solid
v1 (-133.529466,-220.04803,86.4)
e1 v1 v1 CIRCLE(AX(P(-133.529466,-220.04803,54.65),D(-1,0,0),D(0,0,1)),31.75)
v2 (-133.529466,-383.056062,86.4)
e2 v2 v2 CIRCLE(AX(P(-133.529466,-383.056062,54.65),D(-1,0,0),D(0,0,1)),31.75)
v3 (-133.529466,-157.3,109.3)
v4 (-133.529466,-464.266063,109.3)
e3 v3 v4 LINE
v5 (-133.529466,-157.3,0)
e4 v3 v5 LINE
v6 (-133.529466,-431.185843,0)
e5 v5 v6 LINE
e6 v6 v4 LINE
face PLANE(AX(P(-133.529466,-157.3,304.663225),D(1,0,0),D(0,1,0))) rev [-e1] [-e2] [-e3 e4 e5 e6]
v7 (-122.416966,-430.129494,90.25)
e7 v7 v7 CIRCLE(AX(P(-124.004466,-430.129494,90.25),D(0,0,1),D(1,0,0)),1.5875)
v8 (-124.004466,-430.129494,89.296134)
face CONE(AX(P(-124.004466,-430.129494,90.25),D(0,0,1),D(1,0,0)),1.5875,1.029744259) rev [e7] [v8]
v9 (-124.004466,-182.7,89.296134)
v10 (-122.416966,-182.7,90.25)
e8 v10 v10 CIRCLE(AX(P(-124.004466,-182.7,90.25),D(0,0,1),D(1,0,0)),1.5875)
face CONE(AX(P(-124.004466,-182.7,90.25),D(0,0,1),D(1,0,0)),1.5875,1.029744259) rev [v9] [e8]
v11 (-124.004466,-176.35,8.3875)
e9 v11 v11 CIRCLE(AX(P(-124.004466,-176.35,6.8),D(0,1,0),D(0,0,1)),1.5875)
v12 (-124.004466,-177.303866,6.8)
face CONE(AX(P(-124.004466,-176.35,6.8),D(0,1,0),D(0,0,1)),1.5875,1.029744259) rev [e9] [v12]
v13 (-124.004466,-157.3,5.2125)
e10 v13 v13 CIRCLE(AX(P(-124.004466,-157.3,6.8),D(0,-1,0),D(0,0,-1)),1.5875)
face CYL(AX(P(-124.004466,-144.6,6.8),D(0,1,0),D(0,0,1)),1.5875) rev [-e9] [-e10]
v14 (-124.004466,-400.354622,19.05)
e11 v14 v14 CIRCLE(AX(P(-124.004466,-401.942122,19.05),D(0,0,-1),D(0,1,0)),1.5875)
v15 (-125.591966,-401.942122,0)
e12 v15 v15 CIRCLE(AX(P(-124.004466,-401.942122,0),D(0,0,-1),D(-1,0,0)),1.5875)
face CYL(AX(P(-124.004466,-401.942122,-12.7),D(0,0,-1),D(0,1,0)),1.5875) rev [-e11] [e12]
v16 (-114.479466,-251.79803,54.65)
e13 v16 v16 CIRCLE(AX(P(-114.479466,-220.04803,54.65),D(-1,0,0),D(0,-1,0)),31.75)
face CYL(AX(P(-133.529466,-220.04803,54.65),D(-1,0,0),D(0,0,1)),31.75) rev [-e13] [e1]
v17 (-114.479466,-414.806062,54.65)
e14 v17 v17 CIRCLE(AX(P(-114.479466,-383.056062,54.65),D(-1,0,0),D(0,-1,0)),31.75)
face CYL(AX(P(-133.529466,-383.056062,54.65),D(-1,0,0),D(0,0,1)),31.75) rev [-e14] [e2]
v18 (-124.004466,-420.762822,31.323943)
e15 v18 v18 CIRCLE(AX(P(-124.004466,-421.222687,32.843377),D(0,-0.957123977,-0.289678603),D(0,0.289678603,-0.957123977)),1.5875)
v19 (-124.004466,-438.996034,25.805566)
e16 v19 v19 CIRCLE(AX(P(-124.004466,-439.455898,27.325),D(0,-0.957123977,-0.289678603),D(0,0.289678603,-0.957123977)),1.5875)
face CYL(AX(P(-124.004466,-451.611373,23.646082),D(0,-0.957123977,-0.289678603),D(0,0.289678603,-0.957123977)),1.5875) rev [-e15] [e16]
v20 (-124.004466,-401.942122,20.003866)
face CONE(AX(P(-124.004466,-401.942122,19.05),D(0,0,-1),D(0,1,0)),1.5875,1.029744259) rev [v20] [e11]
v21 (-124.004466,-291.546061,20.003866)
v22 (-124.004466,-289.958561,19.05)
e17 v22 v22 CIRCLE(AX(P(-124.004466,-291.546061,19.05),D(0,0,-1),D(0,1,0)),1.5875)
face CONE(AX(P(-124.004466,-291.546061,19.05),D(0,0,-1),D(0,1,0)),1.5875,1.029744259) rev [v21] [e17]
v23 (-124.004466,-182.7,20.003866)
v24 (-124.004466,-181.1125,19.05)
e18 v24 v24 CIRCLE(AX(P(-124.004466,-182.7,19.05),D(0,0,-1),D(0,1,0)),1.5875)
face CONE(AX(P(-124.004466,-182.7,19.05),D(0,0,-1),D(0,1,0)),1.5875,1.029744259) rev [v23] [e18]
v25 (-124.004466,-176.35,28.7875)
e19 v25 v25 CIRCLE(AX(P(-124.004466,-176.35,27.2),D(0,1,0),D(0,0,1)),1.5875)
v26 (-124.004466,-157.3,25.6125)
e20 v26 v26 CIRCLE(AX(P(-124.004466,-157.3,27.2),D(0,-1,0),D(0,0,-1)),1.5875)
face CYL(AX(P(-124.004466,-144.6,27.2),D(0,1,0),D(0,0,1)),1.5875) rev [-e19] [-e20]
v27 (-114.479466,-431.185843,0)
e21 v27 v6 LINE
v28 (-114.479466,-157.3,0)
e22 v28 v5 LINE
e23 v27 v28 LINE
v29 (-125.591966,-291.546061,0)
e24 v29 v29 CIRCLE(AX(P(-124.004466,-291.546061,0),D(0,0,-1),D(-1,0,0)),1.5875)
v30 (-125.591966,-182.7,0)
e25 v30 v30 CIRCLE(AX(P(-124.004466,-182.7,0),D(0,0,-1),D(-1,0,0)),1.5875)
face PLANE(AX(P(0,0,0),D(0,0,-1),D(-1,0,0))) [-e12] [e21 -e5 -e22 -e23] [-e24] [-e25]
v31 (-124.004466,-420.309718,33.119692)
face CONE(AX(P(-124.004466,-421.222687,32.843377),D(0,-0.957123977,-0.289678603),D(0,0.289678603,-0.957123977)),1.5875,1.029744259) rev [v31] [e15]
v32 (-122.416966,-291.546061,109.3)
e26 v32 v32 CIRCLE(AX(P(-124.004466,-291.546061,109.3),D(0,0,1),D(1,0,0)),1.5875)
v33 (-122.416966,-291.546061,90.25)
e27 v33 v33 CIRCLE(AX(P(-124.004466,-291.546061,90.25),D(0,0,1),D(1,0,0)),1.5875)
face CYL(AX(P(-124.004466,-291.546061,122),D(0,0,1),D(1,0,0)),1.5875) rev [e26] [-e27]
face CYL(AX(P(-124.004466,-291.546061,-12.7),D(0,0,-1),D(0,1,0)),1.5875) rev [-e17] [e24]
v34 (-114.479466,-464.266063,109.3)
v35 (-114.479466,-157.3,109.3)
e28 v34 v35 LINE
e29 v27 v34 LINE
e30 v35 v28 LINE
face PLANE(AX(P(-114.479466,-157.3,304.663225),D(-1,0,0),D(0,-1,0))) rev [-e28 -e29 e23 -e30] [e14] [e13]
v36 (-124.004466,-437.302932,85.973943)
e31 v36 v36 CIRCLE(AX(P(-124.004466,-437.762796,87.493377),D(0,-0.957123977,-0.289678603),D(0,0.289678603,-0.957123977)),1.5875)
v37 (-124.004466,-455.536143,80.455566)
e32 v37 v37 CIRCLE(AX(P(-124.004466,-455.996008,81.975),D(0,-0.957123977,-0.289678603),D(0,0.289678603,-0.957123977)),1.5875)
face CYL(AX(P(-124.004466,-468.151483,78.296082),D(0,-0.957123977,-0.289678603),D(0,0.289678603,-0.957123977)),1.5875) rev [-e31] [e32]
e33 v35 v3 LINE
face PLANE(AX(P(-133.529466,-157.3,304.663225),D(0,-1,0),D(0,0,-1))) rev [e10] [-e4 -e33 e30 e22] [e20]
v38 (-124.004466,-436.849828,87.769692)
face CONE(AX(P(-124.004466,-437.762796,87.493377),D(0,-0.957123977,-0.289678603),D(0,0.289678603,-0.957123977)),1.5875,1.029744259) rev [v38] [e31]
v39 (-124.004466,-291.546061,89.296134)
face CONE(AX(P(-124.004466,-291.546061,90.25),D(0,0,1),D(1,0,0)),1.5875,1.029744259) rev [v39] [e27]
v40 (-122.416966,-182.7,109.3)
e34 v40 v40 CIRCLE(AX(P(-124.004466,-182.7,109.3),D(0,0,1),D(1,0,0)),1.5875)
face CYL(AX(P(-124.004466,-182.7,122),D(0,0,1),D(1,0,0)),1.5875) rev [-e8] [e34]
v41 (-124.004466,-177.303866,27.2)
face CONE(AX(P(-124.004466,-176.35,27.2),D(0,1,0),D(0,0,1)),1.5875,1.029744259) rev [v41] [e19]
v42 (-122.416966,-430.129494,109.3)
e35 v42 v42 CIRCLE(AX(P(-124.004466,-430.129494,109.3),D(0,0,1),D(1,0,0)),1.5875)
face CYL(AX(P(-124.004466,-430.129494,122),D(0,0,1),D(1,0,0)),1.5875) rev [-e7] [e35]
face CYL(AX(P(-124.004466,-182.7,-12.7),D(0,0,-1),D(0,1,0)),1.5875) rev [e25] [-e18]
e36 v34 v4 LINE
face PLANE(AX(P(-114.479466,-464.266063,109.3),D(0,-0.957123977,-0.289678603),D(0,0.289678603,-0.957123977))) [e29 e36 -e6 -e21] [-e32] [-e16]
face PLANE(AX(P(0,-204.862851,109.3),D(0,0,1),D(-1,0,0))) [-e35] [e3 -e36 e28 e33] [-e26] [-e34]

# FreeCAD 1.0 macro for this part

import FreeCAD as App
import Part
import Sketcher
Q = App.Units.Quantity


def add_polygon(sketch, points):
    """Adds a closed chain of lines whose ends are joined by coincident constraints."""
    first, n = sketch.GeometryCount, len(points)
    for a, b in zip(points, points[1:] + points[:1]):
        sketch.addGeometry(Part.LineSegment(App.Vector(*a, 0), App.Vector(*b, 0)), False)
    for i in range(n):
        sketch.addConstraint(Sketcher.Constraint("Coincident", first + i, 2, first + (i + 1) % n, 1))

doc = App.newDocument("Part")
body = doc.addObject("PartDesign::Body", "Body")

# Sketch on XY plane
sketch1 = doc.addObject("Sketcher::SketchObject", "Sketch")
body.addObject(sketch1)
sketch1.AttachmentSupport = (doc.XY_Plane, [""])
sketch1.MapMode = "FlatFace"
add_polygon(sketch1, [(-133.529466, -157.3), (-133.529466, -427.342122), (-114.479466, -427.342122), (-114.479466, -157.3)])  # lines 0-3
sketch1.addConstraint(Sketcher.Constraint("Vertical", 0))
sketch1.addConstraint(Sketcher.Constraint("Horizontal", 1))
sketch1.addConstraint(Sketcher.Constraint("Vertical", 2))
sketch1.addConstraint(Sketcher.Constraint("Horizontal", 3))
sketch1.addConstraint(Sketcher.Constraint("DistanceX", 1, 1, 1, 2, Q("0.75 in")))
sketch1.addConstraint(Sketcher.Constraint("DistanceY", 0, 2, 0, 1, 270.042122))
sketch1.addConstraint(Sketcher.Constraint("DistanceY", 2, 2, -1, 1, 157.3))
sketch1.addConstraint(Sketcher.Constraint("DistanceX", 0, 2, -1, 1, 133.529466))
pad1 = doc.addObject("PartDesign::Pad", "Pad")
body.addObject(pad1)
pad1.Profile = sketch1
pad1.Length = 33.95

# Sketch on XY plane
sketch2 = doc.addObject("Sketcher::SketchObject", "Sketch001")
body.addObject(sketch2)
sketch2.AttachmentSupport = (doc.XY_Plane, [""])
sketch2.MapMode = "FlatFace"
sketch2.AttachmentOffset = App.Placement(App.Vector(0, 0, 33.95), App.Rotation())
add_polygon(sketch2, [(-133.529466, -157.3), (-133.529466, -427.342122), (-114.479466, -427.342122), (-114.479466, -157.3)])  # lines 0-3
sketch2.addConstraint(Sketcher.Constraint("Vertical", 0))
sketch2.addConstraint(Sketcher.Constraint("Horizontal", 1))
sketch2.addConstraint(Sketcher.Constraint("Vertical", 2))
sketch2.addConstraint(Sketcher.Constraint("Horizontal", 3))
sketch2.addConstraint(Sketcher.Constraint("DistanceX", 1, 1, 1, 2, Q("0.75 in")))
sketch2.addConstraint(Sketcher.Constraint("DistanceY", 0, 2, 0, 1, 270.042122))
sketch2.addConstraint(Sketcher.Constraint("DistanceY", 2, 2, -1, 1, 157.3))
sketch2.addConstraint(Sketcher.Constraint("DistanceX", 0, 2, -1, 1, 133.529466))
pad2 = doc.addObject("PartDesign::Pad", "Pad001")
body.addObject(pad2)
pad2.Profile = sketch2
pad2.Length = 75.35

# Sketch on YZ plane
sketch3 = doc.addObject("Sketcher::SketchObject", "Sketch002")
body.addObject(sketch3)
sketch3.AttachmentSupport = (doc.YZ_Plane, [""])
sketch3.MapMode = "FlatFace"
sketch3.AttachmentOffset = App.Placement(App.Vector(0, 0, -133.529466), App.Rotation())
add_polygon(sketch3, [(-464.266063, 109.3), (-427.342122, 109.3), (-427.342122, 0), (-431.185843, 0)])  # lines 0-3
sketch3.addConstraint(Sketcher.Constraint("Horizontal", 0))
sketch3.addConstraint(Sketcher.Constraint("Vertical", 1))
sketch3.addConstraint(Sketcher.Constraint("Horizontal", 2))
sketch3.addConstraint(Sketcher.Constraint("PointOnObject", 1, 2, -1))
sketch3.addConstraint(Sketcher.Constraint("DistanceY", 1, 2, 1, 1, 109.3))
sketch3.addConstraint(Sketcher.Constraint("DistanceX", 0, 1, 0, 2, 36.923941))
sketch3.addConstraint(Sketcher.Constraint("DistanceX", 2, 2, 2, 1, 3.843722))
sketch3.addConstraint(Sketcher.Constraint("DistanceX", 0, 2, -1, 1, 427.342122))
pad3 = doc.addObject("PartDesign::Pad", "Pad002")
body.addObject(pad3)
pad3.Profile = sketch3
pad3.Length = Q("0.75 in")

# Sketch on XY plane
sketch4 = doc.addObject("Sketcher::SketchObject", "Sketch003")
body.addObject(sketch4)
sketch4.AttachmentSupport = (doc.XY_Plane, [""])
sketch4.MapMode = "FlatFace"
sketch4.AttachmentOffset = App.Placement(App.Vector(0, 0, 122), App.Rotation())
sketch4.addGeometry(Part.Circle(App.Vector(-237.654466, -118.383333, 0), App.Vector(0, 0, 1), 1.5875), False)
sketch4.addGeometry(Part.Circle(App.Vector(-237.654466, -13.516667, 0), App.Vector(0, 0, 1), 1.5875), False)
sketch4.addGeometry(Part.Circle(App.Vector(-29.404466, -150.95, 0), App.Vector(0, 0, 1), 1.5875), False)
sketch4.addGeometry(Part.Circle(App.Vector(-218.604466, -150.95, 0), App.Vector(0, 0, 1), 1.5875), False)
sketch4.addGeometry(Part.Circle(App.Vector(-124.004466, -150.95, 0), App.Vector(0, 0, 1), 1.5875), False)
sketch4.addGeometry(Part.Circle(App.Vector(-124.004466, -182.7, 0), App.Vector(0, 0, 1), 1.5875), False)
sketch4.addGeometry(Part.Circle(App.Vector(-124.004466, -430.129494, 0), App.Vector(0, 0, 1), 1.5875), False)
sketch4.addGeometry(Part.Circle(App.Vector(-124.004466, -291.546061, 0), App.Vector(0, 0, 1), 1.5875), False)
sketch4.addGeometry(Part.Circle(App.Vector(-164.983633, -291.546061, 0), App.Vector(0, 0, 1), 1.5875), False)
sketch4.addGeometry(Part.Circle(App.Vector(-290.800299, -291.546061, 0), App.Vector(0, 0, 1), 1.5875), False)
sketch4.addGeometry(Part.Circle(App.Vector(-331.779466, -430.129494, 0), App.Vector(0, 0, 1), 1.5875), False)
sketch4.addGeometry(Part.Circle(App.Vector(-331.779466, -322.59712, 0), App.Vector(0, 0, 1), 1.5875), False)
sketch4.addGeometry(Part.Circle(App.Vector(-331.779466, -215.064747, 0), App.Vector(0, 0, 1), 1.5875), False)
sketch4.addGeometry(Part.Circle(App.Vector(-331.779466, -127, 0), App.Vector(0, 0, 1), 1.5875), False)
sketch4.addGeometry(Part.Circle(App.Vector(-331.779466, 0, 0), App.Vector(0, 0, 1), 1.5875), False)
sketch4.addGeometry(Part.Circle(App.Vector(83.770534, 0, 0), App.Vector(0, 0, 1), 1.5875), False)
sketch4.addGeometry(Part.Circle(App.Vector(83.770534, -127, 0), App.Vector(0, 0, 1), 1.5875), False)
sketch4.addGeometry(Part.Circle(App.Vector(83.770534, -215.064747, 0), App.Vector(0, 0, 1), 1.5875), False)
sketch4.addGeometry(Part.Circle(App.Vector(83.770534, -322.59712, 0), App.Vector(0, 0, 1), 1.5875), False)
sketch4.addGeometry(Part.Circle(App.Vector(83.770534, -430.129494, 0), App.Vector(0, 0, 1), 1.5875), False)
sketch4.addGeometry(Part.Circle(App.Vector(42.791367, -291.546061, 0), App.Vector(0, 0, 1), 1.5875), False)
sketch4.addGeometry(Part.Circle(App.Vector(-83.025299, -291.546061, 0), App.Vector(0, 0, 1), 1.5875), False)
sketch4.addGeometry(Part.Circle(App.Vector(-10.354466, -13.516667, 0), App.Vector(0, 0, 1), 1.5875), False)
sketch4.addGeometry(Part.Circle(App.Vector(-10.354466, -118.383333, 0), App.Vector(0, 0, 1), 1.5875), False)
sketch4.addConstraint(Sketcher.Constraint("Equal", 0, 1))
sketch4.addConstraint(Sketcher.Constraint("Equal", 1, 2))
sketch4.addConstraint(Sketcher.Constraint("Equal", 2, 3))
sketch4.addConstraint(Sketcher.Constraint("Equal", 3, 4))
sketch4.addConstraint(Sketcher.Constraint("Equal", 4, 5))
sketch4.addConstraint(Sketcher.Constraint("Equal", 5, 6))
sketch4.addConstraint(Sketcher.Constraint("Equal", 6, 7))
sketch4.addConstraint(Sketcher.Constraint("Equal", 7, 8))
sketch4.addConstraint(Sketcher.Constraint("Equal", 8, 9))
sketch4.addConstraint(Sketcher.Constraint("Equal", 9, 10))
sketch4.addConstraint(Sketcher.Constraint("Equal", 10, 11))
sketch4.addConstraint(Sketcher.Constraint("Equal", 11, 12))
sketch4.addConstraint(Sketcher.Constraint("Equal", 12, 13))
sketch4.addConstraint(Sketcher.Constraint("Equal", 13, 14))
sketch4.addConstraint(Sketcher.Constraint("Equal", 14, 15))
sketch4.addConstraint(Sketcher.Constraint("Equal", 15, 16))
sketch4.addConstraint(Sketcher.Constraint("Equal", 16, 17))
sketch4.addConstraint(Sketcher.Constraint("Equal", 17, 18))
sketch4.addConstraint(Sketcher.Constraint("Equal", 18, 19))
sketch4.addConstraint(Sketcher.Constraint("Equal", 19, 20))
sketch4.addConstraint(Sketcher.Constraint("Equal", 20, 21))
sketch4.addConstraint(Sketcher.Constraint("Equal", 21, 22))
sketch4.addConstraint(Sketcher.Constraint("Equal", 22, 23))
sketch4.addConstraint(Sketcher.Constraint("PointOnObject", 14, 3, -1))
sketch4.addConstraint(Sketcher.Constraint("PointOnObject", 15, 3, -1))
sketch4.addConstraint(Sketcher.Constraint("Horizontal", 2, 3, 3, 3))
sketch4.addConstraint(Sketcher.Constraint("Horizontal", 3, 3, 4, 3))
sketch4.addConstraint(Sketcher.Constraint("Horizontal", 7, 3, 8, 3))
sketch4.addConstraint(Sketcher.Constraint("Horizontal", 8, 3, 9, 3))
sketch4.addConstraint(Sketcher.Constraint("Horizontal", 6, 3, 10, 3))
sketch4.addConstraint(Sketcher.Constraint("Horizontal", 13, 3, 16, 3))
sketch4.addConstraint(Sketcher.Constraint("Horizontal", 12, 3, 17, 3))
sketch4.addConstraint(Sketcher.Constraint("Horizontal", 11, 3, 18, 3))
sketch4.addConstraint(Sketcher.Constraint("Horizontal", 10, 3, 19, 3))
sketch4.addConstraint(Sketcher.Constraint("Horizontal", 9, 3, 20, 3))
sketch4.addConstraint(Sketcher.Constraint("Horizontal", 20, 3, 21, 3))
sketch4.addConstraint(Sketcher.Constraint("Horizontal", 1, 3, 22, 3))
sketch4.addConstraint(Sketcher.Constraint("Horizontal", 0, 3, 23, 3))
sketch4.addConstraint(Sketcher.Constraint("Vertical", 0, 3, 1, 3))
sketch4.addConstraint(Sketcher.Constraint("Vertical", 4, 3, 5, 3))
sketch4.addConstraint(Sketcher.Constraint("Vertical", 5, 3, 6, 3))
sketch4.addConstraint(Sketcher.Constraint("Vertical", 6, 3, 7, 3))
sketch4.addConstraint(Sketcher.Constraint("Vertical", 10, 3, 11, 3))
sketch4.addConstraint(Sketcher.Constraint("Vertical", 11, 3, 12, 3))
sketch4.addConstraint(Sketcher.Constraint("Vertical", 12, 3, 13, 3))
sketch4.addConstraint(Sketcher.Constraint("Vertical", 13, 3, 14, 3))
sketch4.addConstraint(Sketcher.Constraint("Vertical", 15, 3, 16, 3))
sketch4.addConstraint(Sketcher.Constraint("Vertical", 16, 3, 17, 3))
sketch4.addConstraint(Sketcher.Constraint("Vertical", 17, 3, 18, 3))
sketch4.addConstraint(Sketcher.Constraint("Vertical", 18, 3, 19, 3))
sketch4.addConstraint(Sketcher.Constraint("Vertical", 22, 3, 23, 3))
sketch4.addConstraint(Sketcher.Constraint("Diameter", 0, Q("0.125 in")))
sketch4.addConstraint(Sketcher.Constraint("DistanceY", 13, 3, -1, 1, Q("5 in")))
sketch4.addConstraint(Sketcher.Constraint("DistanceX", 0, 3, 3, 3, Q("0.75 in")))
sketch4.addConstraint(Sketcher.Constraint("DistanceY", 5, 3, 4, 3, Q("1.25 in")))
sketch4.addConstraint(Sketcher.Constraint("DistanceX", 2, 3, 22, 3, Q("0.75 in")))
sketch4.addConstraint(Sketcher.Constraint("DistanceY", 2, 3, -1, 1, 150.95))
sketch4.addConstraint(Sketcher.Constraint("DistanceX", 9, 3, -1, 1, 290.800299))
sketch4.addConstraint(Sketcher.Constraint("DistanceX", 21, 3, -1, 1, 83.025299))
sketch4.addConstraint(Sketcher.Constraint("DistanceX", 0, 3, 2, 3, 208.25))
sketch4.addConstraint(Sketcher.Constraint("DistanceX", 4, 3, 2, 3, 94.6))
sketch4.addConstraint(Sketcher.Constraint("DistanceX", 10, 3, 6, 3, 207.775))
sketch4.addConstraint(Sketcher.Constraint("DistanceX", 2, 3, 15, 3, 113.175))
sketch4.addConstraint(Sketcher.Constraint("DistanceY", 7, 3, -1, 1, 291.546061))
sketch4.addConstraint(Sketcher.Constraint("DistanceY", 11, 3, -1, 1, 322.59712))
sketch4.addConstraint(Sketcher.Constraint("DistanceY", 6, 3, 0, 3, 311.74616))
sketch4.addConstraint(Sketcher.Constraint("DistanceX", 0, 3, -1, 1, 237.654466))
sketch4.addConstraint(Sketcher.Constraint("DistanceY", 0, 3, -1, 1, 118.383333))
sketch4.addConstraint(Sketcher.Constraint("DistanceY", 1, 3, -1, 1, 13.516667))
sketch4.addConstraint(Sketcher.Constraint("DistanceX", 8, 3, -1, 1, 164.983633))
sketch4.addConstraint(Sketcher.Constraint("DistanceY", 12, 3, -1, 1, 215.064747))
sketch4.addConstraint(Sketcher.Constraint("DistanceX", -1, 1, 20, 3, 42.791367))
doc.recompute()
hole = doc.addObject("PartDesign::Hole", "Hole")
body.addObject(hole)
hole.Profile = sketch4
hole.ThreadType = "None"
hole.Diameter = Q("0.125 in")
hole.DepthType = "Dimension"
hole.Depth = Q("1.25 in")
hole.DrillPoint = "Angled"
hole.DrillPointAngle = 118
hole.HoleCutType = "Countersink"
hole.HoleCutDiameter = Q("0.4 in")
hole.HoleCutCountersinkAngle = 82

# Sketch on XZ plane
sketch5 = doc.addObject("Sketcher::SketchObject", "Sketch004")
body.addObject(sketch5)
sketch5.AttachmentSupport = (doc.XZ_Plane, [""])
sketch5.MapMode = "FlatFace"
sketch5.AttachmentOffset = App.Placement(App.Vector(0, 0, 144.6), App.Rotation())
sketch5.addGeometry(Part.Circle(App.Vector(-124.004466, 6.8, 0), App.Vector(0, 0, 1), 1.5875), False)
sketch5.addGeometry(Part.Circle(App.Vector(-124.004466, 27.2, 0), App.Vector(0, 0, 1), 1.5875), False)
sketch5.addConstraint(Sketcher.Constraint("Equal", 0, 1))
sketch5.addConstraint(Sketcher.Constraint("Vertical", 0, 3, 1, 3))
sketch5.addConstraint(Sketcher.Constraint("Diameter", 0, Q("0.125 in")))
sketch5.addConstraint(Sketcher.Constraint("DistanceY", -1, 1, 0, 3, 6.8))
sketch5.addConstraint(Sketcher.Constraint("DistanceY", -1, 1, 1, 3, 27.2))
sketch5.addConstraint(Sketcher.Constraint("DistanceX", 0, 3, -1, 1, 124.004466))
doc.recompute()
hole2 = doc.addObject("PartDesign::Hole", "Hole001")
body.addObject(hole2)
hole2.Profile = sketch5
hole2.ThreadType = "None"
hole2.Diameter = Q("0.125 in")
hole2.DepthType = "Dimension"
hole2.Depth = Q("1.25 in")
hole2.DrillPoint = "Angled"
hole2.DrillPointAngle = 118
hole2.HoleCutType = "Countersink"
hole2.HoleCutDiameter = Q("0.4 in")
hole2.HoleCutCountersinkAngle = 82
hole2.Reversed = True

# Sketch on XY plane
sketch6 = doc.addObject("Sketcher::SketchObject", "Sketch005")
body.addObject(sketch6)
sketch6.AttachmentSupport = (doc.XY_Plane, [""])
sketch6.MapMode = "FlatFace"
sketch6.AttachmentOffset = App.Placement(App.Vector(0, 0, -0.5 * 25.4), App.Rotation())
sketch6.addGeometry(Part.Circle(App.Vector(-331.779466, -322.59712, 0), App.Vector(0, 0, 1), 1.5875), False)
sketch6.addGeometry(Part.Circle(App.Vector(-331.779466, -215.064747, 0), App.Vector(0, 0, 1), 1.5875), False)
sketch6.addGeometry(Part.Circle(App.Vector(-331.779466, -127, 0), App.Vector(0, 0, 1), 1.5875), False)
sketch6.addGeometry(Part.Circle(App.Vector(-296.171133, 6.35, 0), App.Vector(0, 0, 1), 1.5875), False)
sketch6.addGeometry(Part.Circle(App.Vector(-270.087799, 6.35, 0), App.Vector(0, 0, 1), 1.5875), False)
sketch6.addGeometry(Part.Circle(App.Vector(-218.604466, -150.95, 0), App.Vector(0, 0, 1), 1.5875), False)
sketch6.addGeometry(Part.Circle(App.Vector(-124.004466, -150.95, 0), App.Vector(0, 0, 1), 1.5875), False)
sketch6.addGeometry(Part.Circle(App.Vector(-29.404466, -150.95, 0), App.Vector(0, 0, 1), 1.5875), False)
sketch6.addGeometry(Part.Circle(App.Vector(22.078867, 6.35, 0), App.Vector(0, 0, 1), 1.5875), False)
sketch6.addGeometry(Part.Circle(App.Vector(48.162201, 6.35, 0), App.Vector(0, 0, 1), 1.5875), False)
sketch6.addGeometry(Part.Circle(App.Vector(83.770534, -127, 0), App.Vector(0, 0, 1), 1.5875), False)
sketch6.addGeometry(Part.Circle(App.Vector(83.770534, -215.064747, 0), App.Vector(0, 0, 1), 1.5875), False)
sketch6.addGeometry(Part.Circle(App.Vector(83.770534, -322.59712, 0), App.Vector(0, 0, 1), 1.5875), False)
sketch6.addGeometry(Part.Circle(App.Vector(42.791367, -291.546061, 0), App.Vector(0, 0, 1), 1.5875), False)
sketch6.addGeometry(Part.Circle(App.Vector(-83.025299, -291.546061, 0), App.Vector(0, 0, 1), 1.5875), False)
sketch6.addGeometry(Part.Circle(App.Vector(-164.983633, -291.546061, 0), App.Vector(0, 0, 1), 1.5875), False)
sketch6.addGeometry(Part.Circle(App.Vector(-290.800299, -291.546061, 0), App.Vector(0, 0, 1), 1.5875), False)
sketch6.addGeometry(Part.Circle(App.Vector(-124.004466, -182.7, 0), App.Vector(0, 0, 1), 1.5875), False)
sketch6.addGeometry(Part.Circle(App.Vector(-124.004466, -291.546061, 0), App.Vector(0, 0, 1), 1.5875), False)
sketch6.addGeometry(Part.Circle(App.Vector(-124.004466, -401.942122, 0), App.Vector(0, 0, 1), 1.5875), False)
sketch6.addGeometry(Part.Circle(App.Vector(-250.354466, -96.4, 0), App.Vector(0, 0, 1), 1.5875), False)
sketch6.addGeometry(Part.Circle(App.Vector(-250.354466, -48.2, 0), App.Vector(0, 0, 1), 1.5875), False)
sketch6.addGeometry(Part.Circle(App.Vector(2.345534, -48.2, 0), App.Vector(0, 0, 1), 1.5875), False)
sketch6.addGeometry(Part.Circle(App.Vector(2.345534, -96.4, 0), App.Vector(0, 0, 1), 1.5875), False)
sketch6.addConstraint(Sketcher.Constraint("Equal", 0, 1))
sketch6.addConstraint(Sketcher.Constraint("Equal", 1, 2))
sketch6.addConstraint(Sketcher.Constraint("Equal", 2, 3))
sketch6.addConstraint(Sketcher.Constraint("Equal", 3, 4))
sketch6.addConstraint(Sketcher.Constraint("Equal", 4, 5))
sketch6.addConstraint(Sketcher.Constraint("Equal", 5, 6))
sketch6.addConstraint(Sketcher.Constraint("Equal", 6, 7))
sketch6.addConstraint(Sketcher.Constraint("Equal", 7, 8))
sketch6.addConstraint(Sketcher.Constraint("Equal", 8, 9))
sketch6.addConstraint(Sketcher.Constraint("Equal", 9, 10))
sketch6.addConstraint(Sketcher.Constraint("Equal", 10, 11))
sketch6.addConstraint(Sketcher.Constraint("Equal", 11, 12))
sketch6.addConstraint(Sketcher.Constraint("Equal", 12, 13))
sketch6.addConstraint(Sketcher.Constraint("Equal", 13, 14))
sketch6.addConstraint(Sketcher.Constraint("Equal", 14, 15))
sketch6.addConstraint(Sketcher.Constraint("Equal", 15, 16))
sketch6.addConstraint(Sketcher.Constraint("Equal", 16, 17))
sketch6.addConstraint(Sketcher.Constraint("Equal", 17, 18))
sketch6.addConstraint(Sketcher.Constraint("Equal", 18, 19))
sketch6.addConstraint(Sketcher.Constraint("Equal", 19, 20))
sketch6.addConstraint(Sketcher.Constraint("Equal", 20, 21))
sketch6.addConstraint(Sketcher.Constraint("Equal", 21, 22))
sketch6.addConstraint(Sketcher.Constraint("Equal", 22, 23))
sketch6.addConstraint(Sketcher.Constraint("Horizontal", 3, 3, 4, 3))
sketch6.addConstraint(Sketcher.Constraint("Horizontal", 5, 3, 6, 3))
sketch6.addConstraint(Sketcher.Constraint("Horizontal", 6, 3, 7, 3))
sketch6.addConstraint(Sketcher.Constraint("Horizontal", 4, 3, 8, 3))
sketch6.addConstraint(Sketcher.Constraint("Horizontal", 8, 3, 9, 3))
sketch6.addConstraint(Sketcher.Constraint("Horizontal", 2, 3, 10, 3))
sketch6.addConstraint(Sketcher.Constraint("Horizontal", 1, 3, 11, 3))
sketch6.addConstraint(Sketcher.Constraint("Horizontal", 0, 3, 12, 3))
sketch6.addConstraint(Sketcher.Constraint("Horizontal", 13, 3, 14, 3))
sketch6.addConstraint(Sketcher.Constraint("Horizontal", 14, 3, 15, 3))
sketch6.addConstraint(Sketcher.Constraint("Horizontal", 15, 3, 16, 3))
sketch6.addConstraint(Sketcher.Constraint("Horizontal", 16, 3, 18, 3))
sketch6.addConstraint(Sketcher.Constraint("Horizontal", 21, 3, 22, 3))
sketch6.addConstraint(Sketcher.Constraint("Horizontal", 20, 3, 23, 3))
sketch6.addConstraint(Sketcher.Constraint("Vertical", 0, 3, 1, 3))
sketch6.addConstraint(Sketcher.Constraint("Vertical", 1, 3, 2, 3))
sketch6.addConstraint(Sketcher.Constraint("Vertical", 10, 3, 11, 3))
sketch6.addConstraint(Sketcher.Constraint("Vertical", 11, 3, 12, 3))
sketch6.addConstraint(Sketcher.Constraint("Vertical", 6, 3, 17, 3))
sketch6.addConstraint(Sketcher.Constraint("Vertical", 17, 3, 18, 3))
sketch6.addConstraint(Sketcher.Constraint("Vertical", 18, 3, 19, 3))
sketch6.addConstraint(Sketcher.Constraint("Vertical", 20, 3, 21, 3))
sketch6.addConstraint(Sketcher.Constraint("Vertical", 22, 3, 23, 3))
sketch6.addConstraint(Sketcher.Constraint("Diameter", 0, Q("0.125 in")))
sketch6.addConstraint(Sketcher.Constraint("DistanceY", 2, 3, -1, 1, Q("5 in")))
sketch6.addConstraint(Sketcher.Constraint("DistanceY", -1, 1, 3, 3, Q("0.25 in")))
sketch6.addConstraint(Sketcher.Constraint("DistanceY", 17, 3, 6, 3, Q("1.25 in")))
sketch6.addConstraint(Sketcher.Constraint("DistanceX", 20, 3, 5, 3, Q("1.25 in")))
sketch6.addConstraint(Sketcher.Constraint("DistanceX", 7, 3, 22, 3, Q("1.25 in")))
sketch6.addConstraint(Sketcher.Constraint("DistanceX", 4, 3, -1, 1, 270.087799))
sketch6.addConstraint(Sketcher.Constraint("DistanceY", 5, 3, -1, 1, 150.95))
sketch6.addConstraint(Sketcher.Constraint("DistanceX", -1, 1, 9, 3, 48.162201))
sketch6.addConstraint(Sketcher.Constraint("DistanceX", 14, 3, -1, 1, 83.025299))
sketch6.addConstraint(Sketcher.Constraint("DistanceX", 16, 3, -1, 1, 290.800299))
sketch6.addConstraint(Sketcher.Constraint("DistanceY", 20, 3, -1, 1, 96.4))
sketch6.addConstraint(Sketcher.Constraint("DistanceY", 21, 3, -1, 1, 48.2))
sketch6.addConstraint(Sketcher.Constraint("DistanceX", 2, 3, 5, 3, 113.175))
sketch6.addConstraint(Sketcher.Constraint("DistanceX", 5, 3, 6, 3, 94.6))
sketch6.addConstraint(Sketcher.Constraint("DistanceX", 6, 3, 7, 3, 94.6))
sketch6.addConstraint(Sketcher.Constraint("DistanceX", 3, 3, 8, 3, 318.25))
sketch6.addConstraint(Sketcher.Constraint("DistanceX", 7, 3, 10, 3, 113.175))
sketch6.addConstraint(Sketcher.Constraint("DistanceY", 0, 3, -1, 1, 322.59712))
sketch6.addConstraint(Sketcher.Constraint("DistanceY", 13, 3, -1, 1, 291.546061))
sketch6.addConstraint(Sketcher.Constraint("DistanceY", 19, 3, -1, 1, 401.942122))
sketch6.addConstraint(Sketcher.Constraint("DistanceX", 0, 3, -1, 1, 331.779466))
sketch6.addConstraint(Sketcher.Constraint("DistanceY", 1, 3, -1, 1, 215.064747))
sketch6.addConstraint(Sketcher.Constraint("DistanceX", 3, 3, -1, 1, 296.171133))
sketch6.addConstraint(Sketcher.Constraint("DistanceX", -1, 1, 13, 3, 42.791367))
sketch6.addConstraint(Sketcher.Constraint("DistanceX", 15, 3, -1, 1, 164.983633))
doc.recompute()
hole3 = doc.addObject("PartDesign::Hole", "Hole002")
body.addObject(hole3)
hole3.Profile = sketch6
hole3.ThreadType = "None"
hole3.Diameter = Q("0.125 in")
hole3.DepthType = "Dimension"
hole3.Depth = Q("1.25 in")
hole3.DrillPoint = "Angled"
hole3.DrillPointAngle = 118
hole3.HoleCutType = "Countersink"
hole3.HoleCutDiameter = Q("0.4 in")
hole3.HoleCutCountersinkAngle = 82
hole3.Reversed = True

# Sketch on an angled plane
sketch7 = doc.addObject("Sketcher::SketchObject", "Sketch006")
body.addObject(sketch7)
sketch7.Placement = App.Placement(App.Vector(0, -407.158921, -123.228788), App.Rotation(App.Vector(1, 0, 0), App.Vector(0, -0.289678603, 0.957123977), App.Vector(0, -0.957123977, -0.289678603), "ZXY"))
sketch7.addGeometry(Part.Circle(App.Vector(83.770534, 461.403454, 0), App.Vector(0, 0, 1), 1.5875), False)
sketch7.addGeometry(Part.Circle(App.Vector(-331.779466, 461.403454, 0), App.Vector(0, 0, 1), 1.5875), False)
sketch7.addGeometry(Part.Circle(App.Vector(-331.779466, 304.628749, 0), App.Vector(0, 0, 1), 1.5875), False)
sketch7.addGeometry(Part.Circle(App.Vector(-331.779466, 618.178159, 0), App.Vector(0, 0, 1), 1.5875), False)
sketch7.addGeometry(Part.Circle(App.Vector(-232.654466, 304.628749, 0), App.Vector(0, 0, 1), 1.5875), False)
sketch7.addGeometry(Part.Circle(App.Vector(-232.654466, 478.478159, 0), App.Vector(0, 0, 1), 1.5875), False)
sketch7.addGeometry(Part.Circle(App.Vector(-232.654466, 618.178159, 0), App.Vector(0, 0, 1), 1.5875), False)
sketch7.addGeometry(Part.Circle(App.Vector(-331.779466, 210.552525, 0), App.Vector(0, 0, 1), 1.5875), False)
sketch7.addGeometry(Part.Circle(App.Vector(-331.779466, 153.454383, 0), App.Vector(0, 0, 1), 1.5875), False)
sketch7.addGeometry(Part.Circle(App.Vector(-124.004466, 153.454383, 0), App.Vector(0, 0, 1), 1.5875), False)
sketch7.addGeometry(Part.Circle(App.Vector(-124.004466, 210.552525, 0), App.Vector(0, 0, 1), 1.5875), False)
sketch7.addGeometry(Part.Circle(App.Vector(83.770534, 153.454383, 0), App.Vector(0, 0, 1), 1.5875), False)
sketch7.addGeometry(Part.Circle(App.Vector(83.770534, 210.552525, 0), App.Vector(0, 0, 1), 1.5875), False)
sketch7.addGeometry(Part.Circle(App.Vector(-15.354466, 618.178159, 0), App.Vector(0, 0, 1), 1.5875), False)
sketch7.addGeometry(Part.Circle(App.Vector(-15.354466, 478.478159, 0), App.Vector(0, 0, 1), 1.5875), False)
sketch7.addGeometry(Part.Circle(App.Vector(-15.354466, 304.628749, 0), App.Vector(0, 0, 1), 1.5875), False)
sketch7.addGeometry(Part.Circle(App.Vector(83.770534, 618.178159, 0), App.Vector(0, 0, 1), 1.5875), False)
sketch7.addGeometry(Part.Circle(App.Vector(83.770534, 304.628749, 0), App.Vector(0, 0, 1), 1.5875), False)
sketch7.addConstraint(Sketcher.Constraint("Equal", 0, 1))
sketch7.addConstraint(Sketcher.Constraint("Equal", 1, 2))
sketch7.addConstraint(Sketcher.Constraint("Equal", 2, 3))
sketch7.addConstraint(Sketcher.Constraint("Equal", 3, 4))
sketch7.addConstraint(Sketcher.Constraint("Equal", 4, 5))
sketch7.addConstraint(Sketcher.Constraint("Equal", 5, 6))
sketch7.addConstraint(Sketcher.Constraint("Equal", 6, 7))
sketch7.addConstraint(Sketcher.Constraint("Equal", 7, 8))
sketch7.addConstraint(Sketcher.Constraint("Equal", 8, 9))
sketch7.addConstraint(Sketcher.Constraint("Equal", 9, 10))
sketch7.addConstraint(Sketcher.Constraint("Equal", 10, 11))
sketch7.addConstraint(Sketcher.Constraint("Equal", 11, 12))
sketch7.addConstraint(Sketcher.Constraint("Equal", 12, 13))
sketch7.addConstraint(Sketcher.Constraint("Equal", 13, 14))
sketch7.addConstraint(Sketcher.Constraint("Equal", 14, 15))
sketch7.addConstraint(Sketcher.Constraint("Equal", 15, 16))
sketch7.addConstraint(Sketcher.Constraint("Equal", 16, 17))
sketch7.addConstraint(Sketcher.Constraint("Horizontal", 0, 3, 1, 3))
sketch7.addConstraint(Sketcher.Constraint("Horizontal", 2, 3, 4, 3))
sketch7.addConstraint(Sketcher.Constraint("Horizontal", 3, 3, 6, 3))
sketch7.addConstraint(Sketcher.Constraint("Horizontal", 8, 3, 9, 3))
sketch7.addConstraint(Sketcher.Constraint("Horizontal", 7, 3, 10, 3))
sketch7.addConstraint(Sketcher.Constraint("Horizontal", 9, 3, 11, 3))
sketch7.addConstraint(Sketcher.Constraint("Horizontal", 10, 3, 12, 3))
sketch7.addConstraint(Sketcher.Constraint("Horizontal", 6, 3, 13, 3))
sketch7.addConstraint(Sketcher.Constraint("Horizontal", 5, 3, 14, 3))
sketch7.addConstraint(Sketcher.Constraint("Horizontal", 4, 3, 15, 3))
sketch7.addConstraint(Sketcher.Constraint("Horizontal", 13, 3, 16, 3))
sketch7.addConstraint(Sketcher.Constraint("Horizontal", 15, 3, 17, 3))
sketch7.addConstraint(Sketcher.Constraint("Vertical", 1, 3, 2, 3))
sketch7.addConstraint(Sketcher.Constraint("Vertical", 2, 3, 3, 3))
sketch7.addConstraint(Sketcher.Constraint("Vertical", 4, 3, 5, 3))
sketch7.addConstraint(Sketcher.Constraint("Vertical", 5, 3, 6, 3))
sketch7.addConstraint(Sketcher.Constraint("Vertical", 3, 3, 7, 3))
sketch7.addConstraint(Sketcher.Constraint("Vertical", 7, 3, 8, 3))
sketch7.addConstraint(Sketcher.Constraint("Vertical", 9, 3, 10, 3))
sketch7.addConstraint(Sketcher.Constraint("Vertical", 0, 3, 11, 3))
sketch7.addConstraint(Sketcher.Constraint("Vertical", 11, 3, 12, 3))
sketch7.addConstraint(Sketcher.Constraint("Vertical", 13, 3, 14, 3))
sketch7.addConstraint(Sketcher.Constraint("Vertical", 14, 3, 15, 3))
sketch7.addConstraint(Sketcher.Constraint("Vertical", 12, 3, 16, 3))
sketch7.addConstraint(Sketcher.Constraint("Vertical", 16, 3, 17, 3))
sketch7.addConstraint(Sketcher.Constraint("Diameter", 0, Q("0.125 in")))
sketch7.addConstraint(Sketcher.Constraint("DistanceY", 5, 3, 3, 3, Q("5.5 in")))
sketch7.addConstraint(Sketcher.Constraint("DistanceX", 1, 3, 0, 3, 415.55))
sketch7.addConstraint(Sketcher.Constraint("DistanceX", 2, 3, 4, 3, 99.125))
sketch7.addConstraint(Sketcher.Constraint("DistanceX", 4, 3, 9, 3, 108.65))
sketch7.addConstraint(Sketcher.Constraint("DistanceX", 13, 3, 0, 3, 99.125))
sketch7.addConstraint(Sketcher.Constraint("DistanceY", -1, 1, 2, 3, 304.628749))
sketch7.addConstraint(Sketcher.Constraint("DistanceY", -1, 1, 3, 3, 618.178159))
sketch7.addConstraint(Sketcher.Constraint("DistanceY", 7, 3, 1, 3, 250.850929))
sketch7.addConstraint(Sketcher.Constraint("DistanceY", 8, 3, 7, 3, 57.098141))
sketch7.addConstraint(Sketcher.Constraint("DistanceX", -1, 1, 0, 3, 83.770534))
sketch7.addConstraint(Sketcher.Constraint("DistanceY", -1, 1, 0, 3, 461.403454))
doc.recompute()
hole4 = doc.addObject("PartDesign::Hole", "Hole003")
body.addObject(hole4)
hole4.Profile = sketch7
hole4.ThreadType = "None"
hole4.Diameter = Q("0.125 in")
hole4.DepthType = "Dimension"
hole4.Depth = Q("1.25 in")
hole4.DrillPoint = "Angled"
hole4.DrillPointAngle = 118
hole4.HoleCutType = "Countersink"
hole4.HoleCutDiameter = Q("0.4 in")
hole4.HoleCutCountersinkAngle = 82

# Sketch on YZ plane
sketch8 = doc.addObject("Sketcher::SketchObject", "Sketch007")
body.addObject(sketch8)
sketch8.AttachmentSupport = (doc.YZ_Plane, [""])
sketch8.MapMode = "FlatFace"
sketch8.AttachmentOffset = App.Placement(App.Vector(0, 0, -133.529466), App.Rotation())
sketch8.addGeometry(Part.Circle(App.Vector(-220.04803, 54.65, 0), App.Vector(0, 0, 1), 31.75), False)
sketch8.addGeometry(Part.Circle(App.Vector(-383.056062, 54.65, 0), App.Vector(0, 0, 1), 31.75), False)
sketch8.addConstraint(Sketcher.Constraint("Equal", 0, 1))
sketch8.addConstraint(Sketcher.Constraint("Horizontal", 0, 3, 1, 3))
sketch8.addConstraint(Sketcher.Constraint("Diameter", 0, Q("2.5 in")))
sketch8.addConstraint(Sketcher.Constraint("DistanceY", -1, 1, 0, 3, 54.65))
sketch8.addConstraint(Sketcher.Constraint("DistanceX", 0, 3, -1, 1, 220.04803))
sketch8.addConstraint(Sketcher.Constraint("DistanceX", 1, 3, -1, 1, 383.056062))
doc.recompute()
hole5 = doc.addObject("PartDesign::Hole", "Hole004")
body.addObject(hole5)
hole5.Profile = sketch8
hole5.ThreadType = "None"
hole5.Diameter = Q("2.5 in")
hole5.DepthType = "Dimension"
hole5.Depth = Q("0.75 in")
hole5.DrillPoint = "Flat"
hole5.Reversed = True

doc.recompute()
